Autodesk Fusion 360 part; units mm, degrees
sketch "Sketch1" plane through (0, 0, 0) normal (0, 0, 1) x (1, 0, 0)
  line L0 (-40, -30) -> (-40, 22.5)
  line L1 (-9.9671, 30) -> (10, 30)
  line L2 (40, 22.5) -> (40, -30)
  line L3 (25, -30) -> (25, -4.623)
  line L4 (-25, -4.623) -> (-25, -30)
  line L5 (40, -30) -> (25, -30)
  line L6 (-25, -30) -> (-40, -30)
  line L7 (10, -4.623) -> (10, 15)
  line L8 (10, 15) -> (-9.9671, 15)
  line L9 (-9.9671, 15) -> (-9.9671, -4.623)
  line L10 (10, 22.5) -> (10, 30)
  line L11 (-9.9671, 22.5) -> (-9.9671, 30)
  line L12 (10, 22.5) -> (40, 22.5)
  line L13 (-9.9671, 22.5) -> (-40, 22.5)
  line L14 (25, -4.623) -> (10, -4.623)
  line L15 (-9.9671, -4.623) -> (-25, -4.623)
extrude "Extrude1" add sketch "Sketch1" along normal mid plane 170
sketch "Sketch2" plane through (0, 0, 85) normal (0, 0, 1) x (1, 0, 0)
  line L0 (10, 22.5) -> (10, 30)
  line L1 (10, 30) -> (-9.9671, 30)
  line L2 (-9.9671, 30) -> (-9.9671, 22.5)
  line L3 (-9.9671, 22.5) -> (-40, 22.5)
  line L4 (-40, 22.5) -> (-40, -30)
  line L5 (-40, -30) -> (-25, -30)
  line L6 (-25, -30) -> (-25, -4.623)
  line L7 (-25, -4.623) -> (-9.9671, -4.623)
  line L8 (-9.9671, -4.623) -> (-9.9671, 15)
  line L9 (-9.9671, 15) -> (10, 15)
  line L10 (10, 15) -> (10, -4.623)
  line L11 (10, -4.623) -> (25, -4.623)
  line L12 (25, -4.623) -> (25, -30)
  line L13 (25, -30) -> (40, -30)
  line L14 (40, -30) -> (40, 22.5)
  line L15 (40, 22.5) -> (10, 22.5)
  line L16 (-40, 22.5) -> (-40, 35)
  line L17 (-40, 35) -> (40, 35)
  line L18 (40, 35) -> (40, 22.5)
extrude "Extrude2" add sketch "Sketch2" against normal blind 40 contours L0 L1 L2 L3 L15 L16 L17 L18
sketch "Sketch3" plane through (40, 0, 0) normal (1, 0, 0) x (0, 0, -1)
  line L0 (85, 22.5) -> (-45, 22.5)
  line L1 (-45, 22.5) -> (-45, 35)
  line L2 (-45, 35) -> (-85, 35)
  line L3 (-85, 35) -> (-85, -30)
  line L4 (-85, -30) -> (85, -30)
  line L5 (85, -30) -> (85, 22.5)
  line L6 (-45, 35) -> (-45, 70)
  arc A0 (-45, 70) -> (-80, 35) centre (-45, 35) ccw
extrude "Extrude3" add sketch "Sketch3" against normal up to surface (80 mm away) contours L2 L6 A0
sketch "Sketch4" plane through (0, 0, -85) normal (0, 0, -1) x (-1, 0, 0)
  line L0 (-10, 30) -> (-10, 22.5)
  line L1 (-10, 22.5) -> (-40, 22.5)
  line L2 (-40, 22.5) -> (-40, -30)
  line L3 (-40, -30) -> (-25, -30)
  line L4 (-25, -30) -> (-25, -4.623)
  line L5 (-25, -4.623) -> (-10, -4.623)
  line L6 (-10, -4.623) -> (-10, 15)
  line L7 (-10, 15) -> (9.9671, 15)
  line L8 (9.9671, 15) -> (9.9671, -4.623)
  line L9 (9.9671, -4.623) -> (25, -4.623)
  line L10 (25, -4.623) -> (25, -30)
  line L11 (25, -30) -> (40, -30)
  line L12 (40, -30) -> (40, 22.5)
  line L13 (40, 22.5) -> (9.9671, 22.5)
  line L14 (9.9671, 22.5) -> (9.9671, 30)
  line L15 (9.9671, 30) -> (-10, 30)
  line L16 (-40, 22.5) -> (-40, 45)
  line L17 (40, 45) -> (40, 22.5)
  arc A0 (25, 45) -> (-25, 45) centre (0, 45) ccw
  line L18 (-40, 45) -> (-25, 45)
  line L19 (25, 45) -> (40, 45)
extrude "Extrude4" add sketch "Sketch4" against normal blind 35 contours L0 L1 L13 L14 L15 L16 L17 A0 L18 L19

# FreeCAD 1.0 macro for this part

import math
import FreeCAD as App
import Part
import Sketcher
from FreeCAD import Vector
Q = App.Units.Quantity


def add_polygon(sketch, points):
    """Adds a closed chain of lines whose ends are joined by coincident constraints."""
    first, n = sketch.GeometryCount, len(points)
    for a, b in zip(points, points[1:] + points[:1]):
        sketch.addGeometry(Part.LineSegment(App.Vector(*a, 0), App.Vector(*b, 0)), False)
    for i in range(n):
        sketch.addConstraint(Sketcher.Constraint("Coincident", first + i, 2, first + (i + 1) % n, 1))

doc = App.newDocument("Part")
params = doc.addObject("Spreadsheet::Sheet", "Params")
for row, (alias, value) in enumerate([
    ("sketch1_width", "15 mm"),
    ("sketch1_height", "52.5 mm"),
    ("sketch1_height2", "7.5 mm"),
    ("pad1_length", "170 mm"),
    ("sketch2_width", "30 mm"),
    ("sketch2_width2", "80 mm"),
    ("sketch2_height", "7.5 mm"),
    ("sketch2_height2", "12.5 mm"),
    ("pad2_length", "40 mm"),
    ("sketch3_radius", "35 mm"),
    ("pad3_length", "80 mm"),
    ("sketch4_radius", "25 mm"),
    ("sketch4_width", "15 mm"),
    ("sketch4_width2", "30 mm"),
    ("sketch4_height", "7.5 mm"),
    ("sketch4_height2", "22.5 mm"),
    ("pad4_length", "35 mm"),
], start=1):
    params.set(f"A{row}", alias)
    params.set(f"B{row}", "=" + value)
    params.setAlias(f"B{row}", alias)

body = doc.addObject("PartDesign::Body", "Body")

# Sketch on XY plane
sketch1 = body.newObject("Sketcher::SketchObject", "Sketch")
sketch1.AttachmentSupport = (doc.getObject("XY_Plane"), [""])
sketch1.MapMode = "FlatFace"
add_polygon(sketch1, [(-40, 22), (-40, -30), (-25, -30), (-25, -5), (-10, -5), (-10, 15), (10, 15), (10, -5), (25, -5), (25, -30), (40, -30), (40, 22), (10, 22), (10, 30), (-10, 30), (-10, 22)])  # lines 0-15
sketch1.addConstraint([
    Sketcher.Constraint("Vertical", 0),
    Sketcher.Constraint("Horizontal", 1),
    Sketcher.Constraint("Vertical", 2),
    Sketcher.Constraint("Horizontal", 3),
    Sketcher.Constraint("Vertical", 4),
    Sketcher.Constraint("Horizontal", 5),
    Sketcher.Constraint("Vertical", 6),
    Sketcher.Constraint("Horizontal", 7),
    Sketcher.Constraint("Vertical", 8),
    Sketcher.Constraint("Horizontal", 9),
    Sketcher.Constraint("Vertical", 10),
    Sketcher.Constraint("Horizontal", 11),
    Sketcher.Constraint("Vertical", 12),
    Sketcher.Constraint("Horizontal", 13),
    Sketcher.Constraint("Vertical", 14),
    Sketcher.Constraint("Horizontal", 15),
    Sketcher.Constraint("Symmetric", 2, 2, 7, 2, -2),
    Sketcher.Constraint("Symmetric", 0, 2, 9, 2, -2),
    Sketcher.Constraint("Horizontal", 11, 2, 14, 2),
    Sketcher.Constraint("Vertical", 6, 2, 11, 2),
    Sketcher.Constraint("Vertical", 4, 2, 13, 2),
    Sketcher.Constraint("Equal", 1, 7),
    Sketcher.Constraint("DistanceX", 1, 1, 1, 2, Q("15 mm")),
    Sketcher.Constraint("DistanceY", 0, 2, 0, 1, Q("52.5 mm")),
    Sketcher.Constraint("DistanceY", 12, 1, 12, 2, Q("7.5 mm")),
    Sketcher.Constraint("DistanceX", 0, 2, -1, 1, Q("40 mm")),
    Sketcher.Constraint("DistanceY", 0, 2, -1, 1, Q("30 mm")),
    Sketcher.Constraint("DistanceY", -1, 1, 4, 2, Q("15 mm")),
    Sketcher.Constraint("DistanceX", 3, 1, 3, 2, Q("15.033 mm")),
    Sketcher.Constraint("DistanceY", 2, 1, 2, 2, Q("25.377 mm")),
])
sketch1.setExpression("Constraints[38]", "Params.sketch1_width")
sketch1.setExpression("Constraints[39]", "Params.sketch1_height")
sketch1.setExpression("Constraints[40]", "Params.sketch1_height2")
pad1 = body.newObject("PartDesign::Pad", "Pad")
pad1.Profile = sketch1
pad1.setExpression("Length", "Params.pad1_length")
pad1.Midplane = True

# Sketch on XY plane
sketch2 = body.newObject("Sketcher::SketchObject", "Sketch001")
sketch2.AttachmentSupport = (doc.getObject("XY_Plane"), [""])
sketch2.MapMode = "FlatFace"
sketch2.AttachmentOffset = App.Placement(Vector(0, 0, 85), App.Rotation())
add_polygon(sketch2, [(10, 30), (10, 22), (40, 22), (40, 35), (-40, 35), (-40, 22), (-10, 22), (-10, 30)])  # lines 0-7
sketch2.addConstraint([
    Sketcher.Constraint("Vertical", 0),
    Sketcher.Constraint("Horizontal", 1),
    Sketcher.Constraint("Vertical", 2),
    Sketcher.Constraint("Horizontal", 3),
    Sketcher.Constraint("Vertical", 4),
    Sketcher.Constraint("Horizontal", 5),
    Sketcher.Constraint("Vertical", 6),
    Sketcher.Constraint("Horizontal", 7),
    Sketcher.Constraint("Symmetric", 1, 2, 4, 2, -2),
    Sketcher.Constraint("DistanceX", 1, 1, 1, 2, Q("30 mm")),
    Sketcher.Constraint("DistanceX", 3, 2, 3, 1, Q("80 mm")),
    Sketcher.Constraint("DistanceY", 0, 2, 0, 1, Q("7.5 mm")),
    Sketcher.Constraint("DistanceY", 2, 1, 2, 2, Q("12.5 mm")),
    Sketcher.Constraint("DistanceY", -1, 1, 2, 2, Q("35 mm")),
    Sketcher.Constraint("DistanceX", 5, 1, 5, 2, Q("30.033 mm")),
])
sketch2.setExpression("Constraints[17]", "Params.sketch2_width")
sketch2.setExpression("Constraints[18]", "Params.sketch2_width2")
sketch2.setExpression("Constraints[19]", "Params.sketch2_height")
sketch2.setExpression("Constraints[20]", "Params.sketch2_height2")
pad2 = body.newObject("PartDesign::Pad", "Pad001")
pad2.Profile = sketch2
pad2.setExpression("Length", "Params.pad2_length")
pad2.Reversed = True

# Sketch on YZ plane
sketch3 = body.newObject("Sketcher::SketchObject", "Sketch002")
sketch3.AttachmentSupport = (doc.getObject("YZ_Plane"), [""])
sketch3.MapMode = "FlatFace"
sketch3.AttachmentOffset = App.Placement(Vector(0, 0, 40), App.Rotation())
sketch3.addGeometry([
    Part.LineSegment(Vector(35, 80, 0), Vector(35, 45, 0)),
    Part.LineSegment(Vector(35, 45, 0), Vector(70, 45, 0)),
    Part.ArcOfCircle(Part.Circle(Vector(35, 45, 0), Vector(0, 0, 1), 35), math.radians(0), math.radians(90)),
], False)
sketch3.addConstraint([
    Sketcher.Constraint("Coincident", 0, 2, 1, 1),
    Sketcher.Constraint("Coincident", 1, 2, 2, 1),
    Sketcher.Constraint("Coincident", 2, 2, 0, 1),
    Sketcher.Constraint("Vertical", 0),
    Sketcher.Constraint("Horizontal", 1),
    Sketcher.Constraint("Coincident", 0, 2, 2, 3),
    Sketcher.Constraint("Radius", 2, Q("35 mm")),
    Sketcher.Constraint("DistanceX", -1, 1, 2, 3, Q("35 mm")),
    Sketcher.Constraint("DistanceY", -1, 1, 2, 3, Q("45 mm")),
])
sketch3.setExpression("Constraints[6]", "Params.sketch3_radius")
pad3 = body.newObject("PartDesign::Pad", "Pad002")
pad3.Profile = sketch3
pad3.setExpression("Length", "Params.pad3_length")
pad3.Reversed = True

# Sketch on XY plane
sketch4 = body.newObject("Sketcher::SketchObject", "Sketch003")
sketch4.AttachmentSupport = (doc.getObject("XY_Plane"), [""])
sketch4.MapMode = "FlatFace"
sketch4.AttachmentOffset = App.Placement(Vector(0, 0, -85), App.Rotation())
sketch4.addGeometry([
    Part.LineSegment(Vector(10, 22, 0), Vector(10, 30, 0)),  # 0
    Part.LineSegment(Vector(10, 30, 0), Vector(-10, 30, 0)),  # 1
    Part.LineSegment(Vector(-10, 30, 0), Vector(-10, 22, 0)),  # 2
    Part.LineSegment(Vector(-10, 22, 0), Vector(-40, 22, 0)),  # 3
    Part.LineSegment(Vector(-40, 22, 0), Vector(-40, 45, 0)),  # 4
    Part.LineSegment(Vector(-40, 45, 0), Vector(-25, 45, 0)),  # 5
    Part.ArcOfCircle(Part.Circle(Vector(0, 45, 0), Vector(0, 0, 1), 25), math.radians(0), math.radians(180)),  # 6
    Part.LineSegment(Vector(25, 45, 0), Vector(40, 45, 0)),  # 7
    Part.LineSegment(Vector(40, 45, 0), Vector(40, 22, 0)),  # 8
    Part.LineSegment(Vector(40, 22, 0), Vector(10, 22, 0)),  # 9
], False)
sketch4.addConstraint([
    Sketcher.Constraint("Coincident", 0, 2, 1, 1),
    Sketcher.Constraint("Coincident", 1, 2, 2, 1),
    Sketcher.Constraint("Coincident", 2, 2, 3, 1),
    Sketcher.Constraint("Coincident", 3, 2, 4, 1),
    Sketcher.Constraint("Coincident", 4, 2, 5, 1),
    Sketcher.Constraint("Coincident", 5, 2, 6, 2),
    Sketcher.Constraint("Coincident", 6, 1, 7, 1),
    Sketcher.Constraint("Coincident", 7, 2, 8, 1),
    Sketcher.Constraint("Coincident", 8, 2, 9, 1),
    Sketcher.Constraint("Coincident", 9, 2, 0, 1),
    Sketcher.Constraint("Vertical", 0),
    Sketcher.Constraint("Horizontal", 1),
    Sketcher.Constraint("Vertical", 2),
    Sketcher.Constraint("Horizontal", 3),
    Sketcher.Constraint("Vertical", 4),
    Sketcher.Constraint("Horizontal", 5),
    Sketcher.Constraint("Horizontal", 7),
    Sketcher.Constraint("Vertical", 8),
    Sketcher.Constraint("Horizontal", 9),
    Sketcher.Constraint("Symmetric", 5, 2, 6, 1, -2),
    Sketcher.Constraint("Symmetric", 3, 2, 8, 2, -2),
    Sketcher.Constraint("Horizontal", 6, 3, 4, 2),
    Sketcher.Constraint("Radius", 6, Q("25 mm")),
    Sketcher.Constraint("DistanceX", 5, 1, 5, 2, Q("15 mm")),
    Sketcher.Constraint("DistanceX", 9, 2, 9, 1, Q("30 mm")),
    Sketcher.Constraint("DistanceY", 0, 1, 0, 2, Q("7.5 mm")),
    Sketcher.Constraint("DistanceY", 4, 1, 4, 2, Q("22.5 mm")),
    Sketcher.Constraint("DistanceY", -1, 1, 6, 3, Q("45 mm")),
    Sketcher.Constraint("DistanceX", 1, 2, 1, 1, Q("19.967 mm")),
])
sketch4.setExpression("Constraints[22]", "Params.sketch4_radius")
sketch4.setExpression("Constraints[23]", "Params.sketch4_width")
sketch4.setExpression("Constraints[24]", "Params.sketch4_width2")
sketch4.setExpression("Constraints[25]", "Params.sketch4_height")
sketch4.setExpression("Constraints[26]", "Params.sketch4_height2")
pad4 = body.newObject("PartDesign::Pad", "Pad003")
pad4.Profile = sketch4
pad4.setExpression("Length", "Params.pad4_length")

doc.recompute()
